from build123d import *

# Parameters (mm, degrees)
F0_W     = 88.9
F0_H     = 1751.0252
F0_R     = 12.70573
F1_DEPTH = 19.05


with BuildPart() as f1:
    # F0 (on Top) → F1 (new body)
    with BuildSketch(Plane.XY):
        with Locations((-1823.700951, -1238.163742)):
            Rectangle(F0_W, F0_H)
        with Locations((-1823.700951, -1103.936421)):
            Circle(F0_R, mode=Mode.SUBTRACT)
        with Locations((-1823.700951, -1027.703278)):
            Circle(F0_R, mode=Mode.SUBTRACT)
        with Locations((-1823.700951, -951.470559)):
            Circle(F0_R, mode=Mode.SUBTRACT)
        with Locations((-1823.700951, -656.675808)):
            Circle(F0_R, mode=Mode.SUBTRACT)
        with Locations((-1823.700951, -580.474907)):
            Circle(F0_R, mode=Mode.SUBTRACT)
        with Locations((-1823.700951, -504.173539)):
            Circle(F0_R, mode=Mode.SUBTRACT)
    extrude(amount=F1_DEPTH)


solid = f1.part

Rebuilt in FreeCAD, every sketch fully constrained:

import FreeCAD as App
import Part
import Sketcher
from FreeCAD import Vector
Q = App.Units.Quantity


def add_polygon(sketch, points):
    """Adds a closed chain of lines whose ends are joined by coincident constraints."""
    first, n = sketch.GeometryCount, len(points)
    for a, b in zip(points, points[1:] + points[:1]):
        sketch.addGeometry(Part.LineSegment(App.Vector(*a, 0), App.Vector(*b, 0)), False)
    for i in range(n):
        sketch.addConstraint(Sketcher.Constraint("Coincident", first + i, 2, first + (i + 1) % n, 1))

doc = App.newDocument("Part")
body = doc.addObject("PartDesign::Body", "Body")

# Sketch on XY plane
sketch1 = body.newObject("Sketcher::SketchObject", "Sketch")
sketch1.AttachmentSupport = (doc.getObject("XY_Plane"), [""])
sketch1.MapMode = "FlatFace"
add_polygon(sketch1, [(-1868, -363), (-1868, -2114), (-1779, -2114), (-1779, -363)])  # lines 0-3
sketch1.addGeometry(Part.Circle(Vector(-1824, -1104, 0), Vector(0, 0, 1), 13), False)  # 4
sketch1.addGeometry(Part.Circle(Vector(-1824, -1028, 0), Vector(0, 0, 1), 13), False)  # 5
sketch1.addGeometry(Part.Circle(Vector(-1824, -951, 0), Vector(0, 0, 1), 13), False)  # 6
sketch1.addGeometry(Part.Circle(Vector(-1824, -657, 0), Vector(0, 0, 1), 13), False)  # 7
sketch1.addGeometry(Part.Circle(Vector(-1824, -580, 0), Vector(0, 0, 1), 13), False)  # 8
sketch1.addGeometry(Part.Circle(Vector(-1824, -504, 0), Vector(0, 0, 1), 13), False)  # 9
sketch1.addConstraint([
    Sketcher.Constraint("Vertical", 0),
    Sketcher.Constraint("Horizontal", 1),
    Sketcher.Constraint("Vertical", 2),
    Sketcher.Constraint("Horizontal", 3),
    Sketcher.Constraint("Equal", 4, 5),
    Sketcher.Constraint("Equal", 5, 6),
    Sketcher.Constraint("Equal", 6, 7),
    Sketcher.Constraint("Equal", 7, 8),
    Sketcher.Constraint("Equal", 8, 9),
    Sketcher.Constraint("Vertical", 4, 3, 5, 3),
    Sketcher.Constraint("Vertical", 5, 3, 6, 3),
    Sketcher.Constraint("Vertical", 6, 3, 7, 3),
    Sketcher.Constraint("Vertical", 7, 3, 8, 3),
    Sketcher.Constraint("Vertical", 8, 3, 9, 3),
    Sketcher.Constraint("DistanceX", 1, 1, 1, 2, Q("3.5 in")),
    Sketcher.Constraint("DistanceY", 0, 2, 0, 1, Q("68.938 in")),
    Sketcher.Constraint("DistanceX", 0, 2, 4, 3, Q("1.75 in")),
    Sketcher.Constraint("Diameter", 4, Q("25.41146 mm")),
    Sketcher.Constraint("DistanceY", 7, 3, 8, 3, Q("76.200901 mm")),
    Sketcher.Constraint("DistanceX", 4, 3, -1, 1, Q("1823.700951 mm")),
    Sketcher.Constraint("DistanceY", 4, 3, -1, 1, Q("1103.936421 mm")),
    Sketcher.Constraint("DistanceY", 5, 3, -1, 1, Q("1027.703278 mm")),
    Sketcher.Constraint("DistanceY", 6, 3, -1, 1, Q("951.470559 mm")),
    Sketcher.Constraint("DistanceY", 7, 3, -1, 1, Q("656.675808 mm")),
    Sketcher.Constraint("DistanceY", 9, 3, -1, 1, Q("504.173539 mm")),
    Sketcher.Constraint("DistanceY", 2, 2, -1, 1, Q("362.651142 mm")),
])
pad1 = body.newObject("PartDesign::Pad", "Pad")
pad1.Profile = sketch1
pad1.Length = Q("0.75 in")

doc.recompute()
